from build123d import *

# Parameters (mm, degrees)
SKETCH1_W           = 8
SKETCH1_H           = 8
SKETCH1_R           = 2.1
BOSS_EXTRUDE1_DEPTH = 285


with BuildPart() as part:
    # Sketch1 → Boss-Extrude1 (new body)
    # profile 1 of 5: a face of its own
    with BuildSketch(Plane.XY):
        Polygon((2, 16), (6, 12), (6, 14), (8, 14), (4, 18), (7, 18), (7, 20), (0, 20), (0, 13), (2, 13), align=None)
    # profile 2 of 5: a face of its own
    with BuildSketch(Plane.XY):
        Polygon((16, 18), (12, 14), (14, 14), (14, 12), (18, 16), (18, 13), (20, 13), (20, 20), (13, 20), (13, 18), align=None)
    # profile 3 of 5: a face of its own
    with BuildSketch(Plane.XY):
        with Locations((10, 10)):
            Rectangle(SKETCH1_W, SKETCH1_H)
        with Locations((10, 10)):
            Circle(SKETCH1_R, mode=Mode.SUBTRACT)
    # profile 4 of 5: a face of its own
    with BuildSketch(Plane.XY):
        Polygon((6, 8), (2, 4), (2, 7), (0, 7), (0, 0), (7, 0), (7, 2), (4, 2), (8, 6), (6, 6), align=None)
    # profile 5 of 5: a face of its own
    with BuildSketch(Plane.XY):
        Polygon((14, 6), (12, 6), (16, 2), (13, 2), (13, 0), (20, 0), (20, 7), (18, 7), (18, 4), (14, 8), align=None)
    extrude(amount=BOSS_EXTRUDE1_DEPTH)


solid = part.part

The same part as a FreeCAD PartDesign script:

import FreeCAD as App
import Part
import Sketcher

V = App.Vector
Q = App.Units.Quantity


def add_polygon(sketch, points):
    """Adds a closed chain of lines whose ends are joined by coincident constraints."""
    first, n = sketch.GeometryCount, len(points)
    for a, b in zip(points, points[1:] + points[:1]):
        sketch.addGeometry(Part.LineSegment(App.Vector(*a, 0), App.Vector(*b, 0)), False)
    for i in range(n):
        sketch.addConstraint(Sketcher.Constraint("Coincident", first + i, 2, first + (i + 1) % n, 1))

doc = App.newDocument("Part")
params = doc.addObject("Spreadsheet::Sheet", "Params")
for row, (alias, value) in enumerate([
    ("sketch1_diameter", "4.2 mm"),
    ("sketch1_width", "2 mm"),
    ("sketch1_width2", "7 mm"),
    ("sketch1_width3", "3 mm"),
    ("sketch1_width4", "4 mm"),
    ("pad1_length", "285 mm"),
], start=1):
    params.set(f"A{row}", alias)
    params.set(f"B{row}", "=" + value)
    params.setAlias(f"B{row}", alias)

body = doc.addObject("PartDesign::Body", "Body")

# Sketch on XY plane
sketch1 = doc.addObject("Sketcher::SketchObject", "Sketch")
body.addObject(sketch1)
sketch1.AttachmentSupport = (doc.XY_Plane, [""])
sketch1.MapMode = "FlatFace"
add_polygon(sketch1, [(2, 16), (6, 12), (6, 8), (2, 4), (2, 7), (0, 7), (0, 0), (7, 0), (7, 2), (4, 2), (8, 6), (12, 6), (16, 2), (13, 2), (13, 0), (20, 0), (20, 7), (18, 7), (18, 4), (14, 8), (14, 12), (18, 16), (18, 13), (20, 13), (20, 20), (13, 20), (13, 18), (16, 18), (12, 14), (8, 14), (4, 18), (7, 18), (7, 20), (0, 20), (0, 13), (2, 13)])  # lines 0-35
sketch1.addGeometry(Part.Circle(V(10, 10, 0), V(0, 0, 1), 2.1), False)  # 36
sketch1.addConstraint([
    Sketcher.Constraint("Vertical", 1),
    Sketcher.Constraint("Vertical", 3),
    Sketcher.Constraint("Horizontal", 4),
    Sketcher.Constraint("Vertical", 5),
    Sketcher.Constraint("Horizontal", 6),
    Sketcher.Constraint("Vertical", 7),
    Sketcher.Constraint("Horizontal", 8),
    Sketcher.Constraint("Horizontal", 10),
    Sketcher.Constraint("Horizontal", 12),
    Sketcher.Constraint("Vertical", 13),
    Sketcher.Constraint("Horizontal", 14),
    Sketcher.Constraint("Vertical", 15),
    Sketcher.Constraint("Horizontal", 16),
    Sketcher.Constraint("Vertical", 17),
    Sketcher.Constraint("Vertical", 19),
    Sketcher.Constraint("Vertical", 21),
    Sketcher.Constraint("Horizontal", 22),
    Sketcher.Constraint("Vertical", 23),
    Sketcher.Constraint("Horizontal", 24),
    Sketcher.Constraint("Vertical", 25),
    Sketcher.Constraint("Horizontal", 26),
    Sketcher.Constraint("Horizontal", 28),
    Sketcher.Constraint("Horizontal", 30),
    Sketcher.Constraint("Vertical", 31),
    Sketcher.Constraint("Horizontal", 32),
    Sketcher.Constraint("Vertical", 33),
    Sketcher.Constraint("Horizontal", 34),
    Sketcher.Constraint("Vertical", 35),
    Sketcher.Constraint("Coincident", 5, 2, -1, 1),
    Sketcher.Constraint("PointOnObject", 13, 2, -1),
    Sketcher.Constraint("PointOnObject", 32, 2, -2),
    Sketcher.Constraint("Perpendicular", 0, 2),
    Sketcher.Constraint("Parallel", 2, 9),
    Sketcher.Constraint("Perpendicular", 9, 11),
    Sketcher.Constraint("Parallel", 11, 18),
    Sketcher.Constraint("Perpendicular", 18, 20),
    Sketcher.Constraint("Parallel", 20, 27),
    Sketcher.Constraint("Perpendicular", 27, 29),
    Sketcher.Constraint("Horizontal", 8, 2, 11, 2),
    Sketcher.Constraint("Horizontal", 4, 2, 15, 2),
    Sketcher.Constraint("Horizontal", 2, 2, 17, 2),
    Sketcher.Constraint("Horizontal", 1, 2, 18, 2),
    Sketcher.Constraint("Horizontal", 0, 2, 19, 2),
    Sketcher.Constraint("Horizontal", 26, 2, 29, 2),
    Sketcher.Constraint("Horizontal", 24, 2, 31, 2),
    Sketcher.Constraint("Horizontal", 22, 2, 33, 2),
    Sketcher.Constraint("Horizontal", 20, 2, 35, 2),
    Sketcher.Constraint("Vertical", 17, 2, 20, 2),
    Sketcher.Constraint("Vertical", 15, 2, 22, 2),
    Sketcher.Constraint("Vertical", 13, 2, 24, 2),
    Sketcher.Constraint("Vertical", 11, 2, 26, 2),
    Sketcher.Constraint("Vertical", 10, 2, 27, 2),
    Sketcher.Constraint("Vertical", 9, 2, 28, 2),
    Sketcher.Constraint("Vertical", 8, 2, 29, 2),
    Sketcher.Constraint("Vertical", 7, 2, 30, 2),
    Sketcher.Constraint("Equal", 8, 12),
    Sketcher.Constraint("Equal", 6, 14),
    Sketcher.Constraint("Equal", 4, 16),
    Sketcher.Constraint("Equal", 28, 1),
    Sketcher.Constraint("Equal", 30, 3),
    Sketcher.Constraint("Equal", 32, 5),
    Sketcher.Constraint("Equal", 34, 7),
    Sketcher.Constraint("Equal", 17, 21),
    Sketcher.Constraint("Equal", 15, 23),
    Sketcher.Constraint("Equal", 13, 25),
    Sketcher.Constraint("Equal", 2, 9),
    Sketcher.Constraint("Diameter", 36, Q("4.2 mm")),
    Sketcher.Constraint("DistanceX", 4, 2, 4, 1, Q("2 mm")),
    Sketcher.Constraint("DistanceX", 6, 1, 6, 2, Q("7 mm")),
    Sketcher.Constraint("DistanceX", 8, 2, 8, 1, Q("3 mm")),
    Sketcher.Constraint("DistanceX", 10, 1, 10, 2, Q("4 mm")),
    Sketcher.Constraint("DistanceX", -1, 1, 36, 3, Q("10 mm")),
    Sketcher.Constraint("DistanceY", -1, 1, 36, 3, Q("10 mm")),
    Sketcher.Constraint("DistanceX", -1, 1, 0, 2, Q("6 mm")),
])
sketch1.setExpression("Constraints[102]", "Params.sketch1_diameter")
sketch1.setExpression("Constraints[103]", "Params.sketch1_width")
sketch1.setExpression("Constraints[104]", "Params.sketch1_width2")
sketch1.setExpression("Constraints[105]", "Params.sketch1_width3")
sketch1.setExpression("Constraints[106]", "Params.sketch1_width4")
pad1 = doc.addObject("PartDesign::Pad", "Pad")
body.addObject(pad1)
pad1.Profile = sketch1
pad1.setExpression("Length", "Params.pad1_length")

doc.recompute()
